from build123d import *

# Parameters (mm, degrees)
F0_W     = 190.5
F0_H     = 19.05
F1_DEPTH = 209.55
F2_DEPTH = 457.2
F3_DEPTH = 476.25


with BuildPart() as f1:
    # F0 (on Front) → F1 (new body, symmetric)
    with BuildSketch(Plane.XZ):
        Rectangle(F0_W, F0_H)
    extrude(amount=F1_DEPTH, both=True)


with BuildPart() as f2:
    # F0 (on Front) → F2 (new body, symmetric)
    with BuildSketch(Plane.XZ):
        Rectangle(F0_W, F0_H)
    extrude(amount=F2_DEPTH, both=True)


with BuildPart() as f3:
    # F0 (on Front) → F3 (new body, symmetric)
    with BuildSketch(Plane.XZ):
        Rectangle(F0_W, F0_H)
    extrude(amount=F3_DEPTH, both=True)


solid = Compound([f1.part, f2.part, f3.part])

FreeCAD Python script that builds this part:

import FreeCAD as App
import Part
import Sketcher

V = App.Vector
Q = App.Units.Quantity

doc = App.newDocument("Part")
params = doc.addObject("Spreadsheet::Sheet", "Params")
for row, (alias, value) in enumerate([
    ("sketch1_width", "7.5 in"),
    ("sketch1_height", "0.75 in"),
    ("pad1_length", "16.5 in"),
    ("sketch2_width", "7.5 in"),
    ("sketch2_height", "0.75 in"),
    ("pad2_length", "36 in"),
    ("sketch3_width", "7.5 in"),
    ("sketch3_height", "0.75 in"),
    ("pad3_length", "37.5 in"),
], start=1):
    params.set(f"A{row}", alias)
    params.set(f"B{row}", "=" + value)
    params.setAlias(f"B{row}", alias)

body = doc.addObject("PartDesign::Body", "Body")

sketch1 = body.newObject("Sketcher::SketchObject", "Sketch")
sketch1.AttachmentSupport = (doc.getObject("XZ_Plane"), [""])
sketch1.MapMode = "FlatFace"
sketch1.addGeometry(Part.LineSegment(V(-95, 10, 0), V(-95, -10, 0)), False)
sketch1.addGeometry(Part.LineSegment(V(-95, -10, 0), V(95, -10, 0)), False)
sketch1.addGeometry(Part.LineSegment(V(95, -10, 0), V(95, 10, 0)), False)
sketch1.addGeometry(Part.LineSegment(V(95, 10, 0), V(-95, 10, 0)), False)
sketch1.addConstraint(Sketcher.Constraint("Coincident", 0, 2, 1, 1))
sketch1.addConstraint(Sketcher.Constraint("Coincident", 1, 2, 2, 1))
sketch1.addConstraint(Sketcher.Constraint("Coincident", 2, 2, 3, 1))
sketch1.addConstraint(Sketcher.Constraint("Coincident", 3, 2, 0, 1))
sketch1.addConstraint(Sketcher.Constraint("Vertical", 0))
sketch1.addConstraint(Sketcher.Constraint("Horizontal", 1))
sketch1.addConstraint(Sketcher.Constraint("Vertical", 2))
sketch1.addConstraint(Sketcher.Constraint("Horizontal", 3))
sketch1.addConstraint(Sketcher.Constraint("Symmetric", 0, 2, 2, 2, -1, 1))
sketch1.addConstraint(Sketcher.Constraint("DistanceX", 1, 1, 1, 2, Q("7.5 in")))
sketch1.addConstraint(Sketcher.Constraint("DistanceY", 0, 2, 0, 1, Q("0.75 in")))
sketch1.setExpression("Constraints[9]", "Params.sketch1_width")
sketch1.setExpression("Constraints[10]", "Params.sketch1_height")
pad1 = body.newObject("PartDesign::Pad", "Pad")
pad1.Profile = sketch1
pad1.setExpression("Length", "Params.pad1_length")
pad1.Midplane = True
body2 = doc.addObject("PartDesign::Body", "Body001")

sketch2 = body2.newObject("Sketcher::SketchObject", "Sketch001")
sketch2.AttachmentSupport = (doc.getObject("XZ_Plane001"), [""])
sketch2.MapMode = "FlatFace"
sketch2.addGeometry(Part.LineSegment(V(-95, 10, 0), V(-95, -10, 0)), False)
sketch2.addGeometry(Part.LineSegment(V(-95, -10, 0), V(95, -10, 0)), False)
sketch2.addGeometry(Part.LineSegment(V(95, -10, 0), V(95, 10, 0)), False)
sketch2.addGeometry(Part.LineSegment(V(95, 10, 0), V(-95, 10, 0)), False)
sketch2.addConstraint(Sketcher.Constraint("Coincident", 0, 2, 1, 1))
sketch2.addConstraint(Sketcher.Constraint("Coincident", 1, 2, 2, 1))
sketch2.addConstraint(Sketcher.Constraint("Coincident", 2, 2, 3, 1))
sketch2.addConstraint(Sketcher.Constraint("Coincident", 3, 2, 0, 1))
sketch2.addConstraint(Sketcher.Constraint("Vertical", 0))
sketch2.addConstraint(Sketcher.Constraint("Horizontal", 1))
sketch2.addConstraint(Sketcher.Constraint("Vertical", 2))
sketch2.addConstraint(Sketcher.Constraint("Horizontal", 3))
sketch2.addConstraint(Sketcher.Constraint("Symmetric", 0, 2, 2, 2, -1, 1))
sketch2.addConstraint(Sketcher.Constraint("DistanceX", 1, 1, 1, 2, Q("7.5 in")))
sketch2.addConstraint(Sketcher.Constraint("DistanceY", 0, 2, 0, 1, Q("0.75 in")))
sketch2.setExpression("Constraints[9]", "Params.sketch2_width")
sketch2.setExpression("Constraints[10]", "Params.sketch2_height")
pad2 = body2.newObject("PartDesign::Pad", "Pad001")
pad2.Profile = sketch2
pad2.setExpression("Length", "Params.pad2_length")
pad2.Midplane = True
body3 = doc.addObject("PartDesign::Body", "Body002")

sketch3 = body3.newObject("Sketcher::SketchObject", "Sketch002")
sketch3.AttachmentSupport = (doc.getObject("XZ_Plane002"), [""])
sketch3.MapMode = "FlatFace"
sketch3.addGeometry(Part.LineSegment(V(-95, 10, 0), V(-95, -10, 0)), False)
sketch3.addGeometry(Part.LineSegment(V(-95, -10, 0), V(95, -10, 0)), False)
sketch3.addGeometry(Part.LineSegment(V(95, -10, 0), V(95, 10, 0)), False)
sketch3.addGeometry(Part.LineSegment(V(95, 10, 0), V(-95, 10, 0)), False)
sketch3.addConstraint(Sketcher.Constraint("Coincident", 0, 2, 1, 1))
sketch3.addConstraint(Sketcher.Constraint("Coincident", 1, 2, 2, 1))
sketch3.addConstraint(Sketcher.Constraint("Coincident", 2, 2, 3, 1))
sketch3.addConstraint(Sketcher.Constraint("Coincident", 3, 2, 0, 1))
sketch3.addConstraint(Sketcher.Constraint("Vertical", 0))
sketch3.addConstraint(Sketcher.Constraint("Horizontal", 1))
sketch3.addConstraint(Sketcher.Constraint("Vertical", 2))
sketch3.addConstraint(Sketcher.Constraint("Horizontal", 3))
sketch3.addConstraint(Sketcher.Constraint("Symmetric", 0, 2, 2, 2, -1, 1))
sketch3.addConstraint(Sketcher.Constraint("DistanceX", 1, 1, 1, 2, Q("7.5 in")))
sketch3.addConstraint(Sketcher.Constraint("DistanceY", 0, 2, 0, 1, Q("0.75 in")))
sketch3.setExpression("Constraints[9]", "Params.sketch3_width")
sketch3.setExpression("Constraints[10]", "Params.sketch3_height")
pad3 = body3.newObject("PartDesign::Pad", "Pad002")
pad3.Profile = sketch3
pad3.setExpression("Length", "Params.pad3_length")
pad3.Midplane = True

doc.recompute()
